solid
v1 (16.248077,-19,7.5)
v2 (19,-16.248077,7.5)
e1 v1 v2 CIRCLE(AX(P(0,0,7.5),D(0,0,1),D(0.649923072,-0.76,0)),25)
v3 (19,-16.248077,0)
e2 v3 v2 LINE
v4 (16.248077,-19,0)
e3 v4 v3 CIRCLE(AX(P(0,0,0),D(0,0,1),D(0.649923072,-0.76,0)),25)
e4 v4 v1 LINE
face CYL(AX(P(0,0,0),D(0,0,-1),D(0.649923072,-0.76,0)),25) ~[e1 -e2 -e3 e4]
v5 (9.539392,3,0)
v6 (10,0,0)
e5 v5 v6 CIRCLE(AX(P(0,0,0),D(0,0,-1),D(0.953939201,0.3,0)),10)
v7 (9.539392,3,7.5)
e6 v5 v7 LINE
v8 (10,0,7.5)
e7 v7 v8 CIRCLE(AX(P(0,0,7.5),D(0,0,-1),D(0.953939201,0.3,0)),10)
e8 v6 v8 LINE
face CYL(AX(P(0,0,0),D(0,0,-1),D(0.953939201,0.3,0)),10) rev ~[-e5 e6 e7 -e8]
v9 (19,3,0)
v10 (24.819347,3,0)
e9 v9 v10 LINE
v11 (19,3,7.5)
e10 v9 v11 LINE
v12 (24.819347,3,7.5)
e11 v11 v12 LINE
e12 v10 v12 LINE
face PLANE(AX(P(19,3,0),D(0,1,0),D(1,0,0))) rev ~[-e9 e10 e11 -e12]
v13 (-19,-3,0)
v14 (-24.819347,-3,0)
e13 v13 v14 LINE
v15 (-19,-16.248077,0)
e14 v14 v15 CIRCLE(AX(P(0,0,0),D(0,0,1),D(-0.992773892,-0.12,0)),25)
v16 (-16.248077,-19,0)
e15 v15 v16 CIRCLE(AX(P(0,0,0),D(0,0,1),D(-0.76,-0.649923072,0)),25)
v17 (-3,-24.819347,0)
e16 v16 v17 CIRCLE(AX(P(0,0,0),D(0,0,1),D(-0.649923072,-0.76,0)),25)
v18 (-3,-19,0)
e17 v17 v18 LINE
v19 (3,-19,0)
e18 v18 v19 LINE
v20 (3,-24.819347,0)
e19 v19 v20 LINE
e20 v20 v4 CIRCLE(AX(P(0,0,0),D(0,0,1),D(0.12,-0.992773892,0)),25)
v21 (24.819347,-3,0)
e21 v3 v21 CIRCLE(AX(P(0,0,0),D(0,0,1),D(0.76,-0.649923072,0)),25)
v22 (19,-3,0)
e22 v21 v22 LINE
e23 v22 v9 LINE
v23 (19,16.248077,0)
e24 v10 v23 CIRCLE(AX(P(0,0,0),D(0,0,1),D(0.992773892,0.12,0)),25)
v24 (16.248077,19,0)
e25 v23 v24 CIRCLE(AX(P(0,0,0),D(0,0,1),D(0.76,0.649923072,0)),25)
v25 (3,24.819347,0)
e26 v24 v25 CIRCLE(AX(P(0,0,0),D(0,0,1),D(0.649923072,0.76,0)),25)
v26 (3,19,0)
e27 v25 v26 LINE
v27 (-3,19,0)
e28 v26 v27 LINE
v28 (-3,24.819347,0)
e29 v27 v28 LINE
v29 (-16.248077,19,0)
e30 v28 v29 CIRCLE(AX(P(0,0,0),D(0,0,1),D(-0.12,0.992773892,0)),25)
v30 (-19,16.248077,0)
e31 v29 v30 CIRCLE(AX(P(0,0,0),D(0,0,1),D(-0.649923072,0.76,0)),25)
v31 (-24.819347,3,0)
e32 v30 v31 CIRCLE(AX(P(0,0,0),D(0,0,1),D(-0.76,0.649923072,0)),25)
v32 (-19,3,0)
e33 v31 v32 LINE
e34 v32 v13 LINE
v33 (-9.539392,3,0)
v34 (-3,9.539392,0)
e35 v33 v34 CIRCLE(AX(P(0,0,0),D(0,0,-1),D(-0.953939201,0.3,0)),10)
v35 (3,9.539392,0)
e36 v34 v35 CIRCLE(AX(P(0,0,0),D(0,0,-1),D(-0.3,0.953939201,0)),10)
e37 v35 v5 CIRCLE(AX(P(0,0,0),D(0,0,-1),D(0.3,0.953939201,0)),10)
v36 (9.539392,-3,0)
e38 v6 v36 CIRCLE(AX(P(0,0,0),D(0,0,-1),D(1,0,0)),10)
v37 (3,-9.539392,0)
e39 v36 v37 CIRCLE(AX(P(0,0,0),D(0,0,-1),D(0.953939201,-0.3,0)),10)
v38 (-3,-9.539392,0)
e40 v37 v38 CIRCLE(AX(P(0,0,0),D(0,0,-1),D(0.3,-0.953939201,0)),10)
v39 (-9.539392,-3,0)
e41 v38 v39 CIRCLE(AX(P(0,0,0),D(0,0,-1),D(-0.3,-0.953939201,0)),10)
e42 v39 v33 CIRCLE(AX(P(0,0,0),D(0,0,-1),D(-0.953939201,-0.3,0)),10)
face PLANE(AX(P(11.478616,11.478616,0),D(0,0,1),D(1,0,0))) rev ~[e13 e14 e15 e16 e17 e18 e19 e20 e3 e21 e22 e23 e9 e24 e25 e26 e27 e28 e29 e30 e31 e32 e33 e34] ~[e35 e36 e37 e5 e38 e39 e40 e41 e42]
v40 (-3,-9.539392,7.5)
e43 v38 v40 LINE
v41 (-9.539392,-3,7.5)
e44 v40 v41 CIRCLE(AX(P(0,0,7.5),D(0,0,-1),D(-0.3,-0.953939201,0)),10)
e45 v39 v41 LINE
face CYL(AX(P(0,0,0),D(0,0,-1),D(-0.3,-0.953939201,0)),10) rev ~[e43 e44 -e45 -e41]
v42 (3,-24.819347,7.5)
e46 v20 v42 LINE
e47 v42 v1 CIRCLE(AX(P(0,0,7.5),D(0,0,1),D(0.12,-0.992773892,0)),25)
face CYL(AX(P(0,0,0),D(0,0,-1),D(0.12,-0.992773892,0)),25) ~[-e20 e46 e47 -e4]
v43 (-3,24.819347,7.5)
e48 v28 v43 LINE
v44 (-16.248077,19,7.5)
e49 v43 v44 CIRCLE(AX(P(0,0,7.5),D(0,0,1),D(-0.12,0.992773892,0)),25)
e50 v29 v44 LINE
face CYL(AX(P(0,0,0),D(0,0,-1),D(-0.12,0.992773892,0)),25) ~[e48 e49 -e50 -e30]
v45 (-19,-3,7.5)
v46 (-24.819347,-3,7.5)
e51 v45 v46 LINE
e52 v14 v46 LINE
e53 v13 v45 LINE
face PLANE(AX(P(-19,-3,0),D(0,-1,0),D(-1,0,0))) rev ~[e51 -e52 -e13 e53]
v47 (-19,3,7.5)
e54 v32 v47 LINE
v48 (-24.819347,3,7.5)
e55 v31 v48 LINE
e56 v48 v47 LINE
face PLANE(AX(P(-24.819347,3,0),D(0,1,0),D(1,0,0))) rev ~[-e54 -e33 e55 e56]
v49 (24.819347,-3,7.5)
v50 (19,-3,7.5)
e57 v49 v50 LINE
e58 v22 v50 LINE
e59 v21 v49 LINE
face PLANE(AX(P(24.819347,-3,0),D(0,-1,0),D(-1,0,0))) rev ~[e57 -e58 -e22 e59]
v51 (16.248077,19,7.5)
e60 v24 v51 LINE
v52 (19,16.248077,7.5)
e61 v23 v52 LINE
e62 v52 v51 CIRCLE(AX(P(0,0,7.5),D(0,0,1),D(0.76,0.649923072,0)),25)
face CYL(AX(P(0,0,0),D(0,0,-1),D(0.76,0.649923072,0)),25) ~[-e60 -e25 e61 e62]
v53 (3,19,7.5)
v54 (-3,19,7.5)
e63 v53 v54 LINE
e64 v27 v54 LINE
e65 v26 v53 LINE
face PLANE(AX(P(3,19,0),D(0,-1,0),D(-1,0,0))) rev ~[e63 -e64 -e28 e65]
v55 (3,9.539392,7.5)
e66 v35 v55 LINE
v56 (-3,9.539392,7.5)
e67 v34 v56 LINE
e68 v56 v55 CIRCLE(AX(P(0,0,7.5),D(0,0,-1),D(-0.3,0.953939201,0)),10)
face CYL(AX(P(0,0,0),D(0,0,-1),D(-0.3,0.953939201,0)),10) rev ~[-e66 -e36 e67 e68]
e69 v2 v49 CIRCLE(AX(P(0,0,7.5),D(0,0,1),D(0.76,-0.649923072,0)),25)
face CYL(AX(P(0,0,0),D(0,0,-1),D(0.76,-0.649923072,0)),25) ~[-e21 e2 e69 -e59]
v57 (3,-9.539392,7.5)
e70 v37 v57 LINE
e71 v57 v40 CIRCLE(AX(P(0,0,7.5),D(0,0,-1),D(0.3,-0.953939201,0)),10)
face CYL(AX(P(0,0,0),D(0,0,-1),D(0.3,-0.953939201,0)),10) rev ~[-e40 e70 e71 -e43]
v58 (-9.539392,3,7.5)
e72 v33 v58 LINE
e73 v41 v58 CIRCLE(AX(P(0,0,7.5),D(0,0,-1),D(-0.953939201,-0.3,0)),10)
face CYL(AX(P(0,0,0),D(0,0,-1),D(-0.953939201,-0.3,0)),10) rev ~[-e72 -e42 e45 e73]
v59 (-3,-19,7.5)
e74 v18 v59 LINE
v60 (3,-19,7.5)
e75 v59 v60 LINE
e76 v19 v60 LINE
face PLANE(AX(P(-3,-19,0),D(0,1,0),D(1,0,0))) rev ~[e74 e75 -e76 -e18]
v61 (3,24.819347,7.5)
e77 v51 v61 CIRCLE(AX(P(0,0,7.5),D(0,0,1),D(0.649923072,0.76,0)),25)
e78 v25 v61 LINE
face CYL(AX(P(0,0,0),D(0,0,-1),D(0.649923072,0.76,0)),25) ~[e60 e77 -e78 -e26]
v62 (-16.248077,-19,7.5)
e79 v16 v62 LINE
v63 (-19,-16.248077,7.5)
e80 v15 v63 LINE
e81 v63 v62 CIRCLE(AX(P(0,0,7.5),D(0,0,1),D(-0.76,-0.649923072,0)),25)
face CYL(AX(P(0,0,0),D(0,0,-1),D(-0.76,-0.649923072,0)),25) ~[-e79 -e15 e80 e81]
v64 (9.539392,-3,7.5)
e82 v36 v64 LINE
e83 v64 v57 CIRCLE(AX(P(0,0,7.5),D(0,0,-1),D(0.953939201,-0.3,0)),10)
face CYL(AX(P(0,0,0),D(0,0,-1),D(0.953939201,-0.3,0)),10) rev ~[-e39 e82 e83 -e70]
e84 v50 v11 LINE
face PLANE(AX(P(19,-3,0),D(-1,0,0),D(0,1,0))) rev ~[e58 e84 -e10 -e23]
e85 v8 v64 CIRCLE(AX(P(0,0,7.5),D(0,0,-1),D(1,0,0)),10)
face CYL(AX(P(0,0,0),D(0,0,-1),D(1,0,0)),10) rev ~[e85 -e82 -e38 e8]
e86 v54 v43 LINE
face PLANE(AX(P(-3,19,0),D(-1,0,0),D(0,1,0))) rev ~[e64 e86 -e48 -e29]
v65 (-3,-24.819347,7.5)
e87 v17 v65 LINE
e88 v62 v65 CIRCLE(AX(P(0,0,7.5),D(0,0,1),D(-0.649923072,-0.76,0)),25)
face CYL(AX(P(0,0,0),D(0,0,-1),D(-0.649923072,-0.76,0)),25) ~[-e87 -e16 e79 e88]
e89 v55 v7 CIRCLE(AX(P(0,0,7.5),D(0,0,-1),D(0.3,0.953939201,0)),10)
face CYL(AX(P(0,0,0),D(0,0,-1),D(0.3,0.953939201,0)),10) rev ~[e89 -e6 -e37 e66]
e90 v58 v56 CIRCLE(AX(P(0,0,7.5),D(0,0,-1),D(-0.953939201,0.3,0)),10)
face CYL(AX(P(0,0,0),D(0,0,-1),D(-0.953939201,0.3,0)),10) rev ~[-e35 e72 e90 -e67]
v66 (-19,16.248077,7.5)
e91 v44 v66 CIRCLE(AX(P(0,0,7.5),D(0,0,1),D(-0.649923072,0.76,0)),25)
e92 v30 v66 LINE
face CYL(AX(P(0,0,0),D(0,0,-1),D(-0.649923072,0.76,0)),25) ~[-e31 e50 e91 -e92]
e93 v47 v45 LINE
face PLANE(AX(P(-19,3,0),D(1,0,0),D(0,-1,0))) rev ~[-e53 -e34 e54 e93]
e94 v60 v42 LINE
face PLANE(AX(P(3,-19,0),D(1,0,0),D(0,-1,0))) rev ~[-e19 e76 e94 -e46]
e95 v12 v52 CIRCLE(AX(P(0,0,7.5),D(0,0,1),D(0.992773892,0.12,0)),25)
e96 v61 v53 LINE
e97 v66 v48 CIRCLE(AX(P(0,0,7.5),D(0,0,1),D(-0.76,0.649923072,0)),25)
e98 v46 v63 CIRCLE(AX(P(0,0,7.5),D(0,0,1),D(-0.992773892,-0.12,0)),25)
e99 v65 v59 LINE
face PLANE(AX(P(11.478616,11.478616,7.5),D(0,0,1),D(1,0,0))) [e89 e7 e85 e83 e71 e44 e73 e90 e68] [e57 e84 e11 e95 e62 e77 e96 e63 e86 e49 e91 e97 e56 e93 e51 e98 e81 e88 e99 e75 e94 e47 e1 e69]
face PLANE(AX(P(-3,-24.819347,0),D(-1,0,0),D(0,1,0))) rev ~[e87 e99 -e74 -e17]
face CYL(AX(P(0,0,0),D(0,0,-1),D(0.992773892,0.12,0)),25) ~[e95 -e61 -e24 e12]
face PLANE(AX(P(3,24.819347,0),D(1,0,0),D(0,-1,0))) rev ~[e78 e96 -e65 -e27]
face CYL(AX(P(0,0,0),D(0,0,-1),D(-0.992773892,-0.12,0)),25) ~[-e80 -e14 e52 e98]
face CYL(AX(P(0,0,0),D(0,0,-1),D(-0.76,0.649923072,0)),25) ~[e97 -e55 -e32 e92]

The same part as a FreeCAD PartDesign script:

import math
import FreeCAD as App
import Part
import Sketcher
from FreeCAD import Vector
Q = App.Units.Quantity

doc = App.newDocument("Part")
body = doc.addObject("PartDesign::Body", "Body")

# Sketch on XY plane
sketch1 = body.newObject("Sketcher::SketchObject", "Sketch")
sketch1.AttachmentSupport = (doc.getObject("XY_Plane"), [""])
sketch1.MapMode = "FlatFace"
sketch1.addGeometry([
    Part.LineSegment(Vector(-3, 19, 0), Vector(-3, 24.8, 0)),  # 0
    Part.ArcOfCircle(Part.Circle(Vector(0, 0, 0), Vector(0, 0, 1), 25), math.radians(97), math.radians(131)),  # 1
    Part.ArcOfCircle(Part.Circle(Vector(0, 0, 0), Vector(0, 0, 1), 25), math.radians(130.54), math.radians(139.46)),  # 2
    Part.ArcOfCircle(Part.Circle(Vector(0, 0, 0), Vector(0, 0, 1), 25), math.radians(139), math.radians(173)),  # 3
    Part.LineSegment(Vector(-24.8, 3, 0), Vector(-19, 3, 0)),  # 4
    Part.LineSegment(Vector(-19, 3, 0), Vector(-19, -3, 0)),  # 5
    Part.LineSegment(Vector(-19, -3, 0), Vector(-24.8, -3, 0)),  # 6
    Part.ArcOfCircle(Part.Circle(Vector(0, 0, 0), Vector(0, 0, 1), 25), math.radians(-173), math.radians(-139)),  # 7
    Part.ArcOfCircle(Part.Circle(Vector(0, 0, 0), Vector(0, 0, 1), 25), math.radians(-139.46), math.radians(-130.54)),  # 8
    Part.ArcOfCircle(Part.Circle(Vector(0, 0, 0), Vector(0, 0, 1), 25), math.radians(-131), math.radians(-97)),  # 9
    Part.LineSegment(Vector(-3, -24.8, 0), Vector(-3, -19, 0)),  # 10
    Part.LineSegment(Vector(-3, -19, 0), Vector(3, -19, 0)),  # 11
    Part.LineSegment(Vector(3, -19, 0), Vector(3, -24.8, 0)),  # 12
    Part.ArcOfCircle(Part.Circle(Vector(0, 0, 0), Vector(0, 0, 1), 25), math.radians(-83), math.radians(-49)),  # 13
    Part.ArcOfCircle(Part.Circle(Vector(0, 0, 0), Vector(0, 0, 1), 25), math.radians(-49.46), math.radians(-40.54)),  # 14
    Part.ArcOfCircle(Part.Circle(Vector(0, 0, 0), Vector(0, 0, 1), 25), math.radians(-41), math.radians(-7)),  # 15
    Part.LineSegment(Vector(24.8, -3, 0), Vector(19, -3, 0)),  # 16
    Part.LineSegment(Vector(19, -3, 0), Vector(19, 3, 0)),  # 17
    Part.LineSegment(Vector(19, 3, 0), Vector(24.8, 3, 0)),  # 18
    Part.ArcOfCircle(Part.Circle(Vector(0, 0, 0), Vector(0, 0, 1), 25), math.radians(7), math.radians(41)),  # 19
    Part.ArcOfCircle(Part.Circle(Vector(0, 0, 0), Vector(0, 0, 1), 25), math.radians(40.54), math.radians(49.46)),  # 20
    Part.ArcOfCircle(Part.Circle(Vector(0, 0, 0), Vector(0, 0, 1), 25), math.radians(49), math.radians(83)),  # 21
    Part.LineSegment(Vector(3, 24.8, 0), Vector(3, 19, 0)),  # 22
    Part.LineSegment(Vector(3, 19, 0), Vector(-3, 19, 0)),  # 23
    Part.ArcOfCircle(Part.Circle(Vector(0, 0, 0), Vector(0, 0, 1), 10), math.radians(17), math.radians(73)),  # 24
    Part.ArcOfCircle(Part.Circle(Vector(0, 0, 0), Vector(0, 0, 1), 10), math.radians(0), math.radians(17.46)),  # 25
    Part.ArcOfCircle(Part.Circle(Vector(0, 0, 0), Vector(0, 0, 1), 10), math.radians(-17.46), math.radians(0)),  # 26
    Part.ArcOfCircle(Part.Circle(Vector(0, 0, 0), Vector(0, 0, 1), 10), math.radians(-73), math.radians(-17)),  # 27
    Part.ArcOfCircle(Part.Circle(Vector(0, 0, 0), Vector(0, 0, 1), 10), math.radians(-107), math.radians(-73)),  # 28
    Part.ArcOfCircle(Part.Circle(Vector(0, 0, 0), Vector(0, 0, 1), 10), math.radians(-163), math.radians(-107)),  # 29
    Part.ArcOfCircle(Part.Circle(Vector(0, 0, 0), Vector(0, 0, 1), 10), math.radians(163), math.radians(197)),  # 30
    Part.ArcOfCircle(Part.Circle(Vector(0, 0, 0), Vector(0, 0, 1), 10), math.radians(107), math.radians(163)),  # 31
    Part.ArcOfCircle(Part.Circle(Vector(0, 0, 0), Vector(0, 0, 1), 10), math.radians(73), math.radians(107)),  # 32
], False)
sketch1.addConstraint([
    Sketcher.Constraint("Coincident", 0, 2, 1, 1),
    Sketcher.Constraint("Tangent", 1, 2, 2, 1),
    Sketcher.Constraint("Tangent", 2, 2, 3, 1),
    Sketcher.Constraint("Coincident", 3, 2, 4, 1),
    Sketcher.Constraint("Coincident", 4, 2, 5, 1),
    Sketcher.Constraint("Coincident", 5, 2, 6, 1),
    Sketcher.Constraint("Coincident", 6, 2, 7, 1),
    Sketcher.Constraint("Tangent", 7, 2, 8, 1),
    Sketcher.Constraint("Tangent", 8, 2, 9, 1),
    Sketcher.Constraint("Coincident", 9, 2, 10, 1),
    Sketcher.Constraint("Coincident", 10, 2, 11, 1),
    Sketcher.Constraint("Coincident", 11, 2, 12, 1),
    Sketcher.Constraint("Coincident", 12, 2, 13, 1),
    Sketcher.Constraint("Tangent", 13, 2, 14, 1),
    Sketcher.Constraint("Tangent", 14, 2, 15, 1),
    Sketcher.Constraint("Coincident", 15, 2, 16, 1),
    Sketcher.Constraint("Coincident", 16, 2, 17, 1),
    Sketcher.Constraint("Coincident", 17, 2, 18, 1),
    Sketcher.Constraint("Coincident", 18, 2, 19, 1),
    Sketcher.Constraint("Tangent", 19, 2, 20, 1),
    Sketcher.Constraint("Tangent", 20, 2, 21, 1),
    Sketcher.Constraint("Coincident", 21, 2, 22, 1),
    Sketcher.Constraint("Coincident", 22, 2, 23, 1),
    Sketcher.Constraint("Coincident", 23, 2, 0, 1),
    Sketcher.Constraint("Tangent", 24, 1, 25, 2),
    Sketcher.Constraint("Tangent", 25, 1, 26, 2),
    Sketcher.Constraint("Tangent", 26, 1, 27, 2),
    Sketcher.Constraint("Tangent", 27, 1, 28, 2),
    Sketcher.Constraint("Tangent", 28, 1, 29, 2),
    Sketcher.Constraint("Tangent", 29, 1, 30, 2),
    Sketcher.Constraint("Tangent", 30, 1, 31, 2),
    Sketcher.Constraint("Tangent", 31, 1, 32, 2),
    Sketcher.Constraint("Tangent", 32, 1, 24, 2),
    Sketcher.Constraint("Vertical", 0),
    Sketcher.Constraint("Horizontal", 4),
    Sketcher.Constraint("Vertical", 5),
    Sketcher.Constraint("Horizontal", 6),
    Sketcher.Constraint("Vertical", 10),
    Sketcher.Constraint("Horizontal", 11),
    Sketcher.Constraint("Vertical", 12),
    Sketcher.Constraint("Horizontal", 16),
    Sketcher.Constraint("Vertical", 17),
    Sketcher.Constraint("Horizontal", 18),
    Sketcher.Constraint("Vertical", 22),
    Sketcher.Constraint("Horizontal", 23),
    Sketcher.Constraint("Coincident", 1, 3, -1, 1),
    Sketcher.Constraint("Coincident", 3, 3, -1, 1),
    Sketcher.Constraint("Coincident", 7, 3, -1, 1),
    Sketcher.Constraint("Coincident", 9, 3, -1, 1),
    Sketcher.Constraint("Coincident", 13, 3, -1, 1),
    Sketcher.Constraint("Coincident", 15, 3, -1, 1),
    Sketcher.Constraint("Coincident", 19, 3, -1, 1),
    Sketcher.Constraint("Coincident", 21, 3, -1, 1),
    Sketcher.Constraint("Coincident", 24, 3, -1, 1),
    Sketcher.Constraint("Coincident", 26, 3, -1, 1),
    Sketcher.Constraint("Coincident", 28, 3, -1, 1),
    Sketcher.Constraint("Coincident", 30, 3, -1, 1),
    Sketcher.Constraint("Equal", 3, 7),
    Sketcher.Constraint("Equal", 9, 13),
    Sketcher.Constraint("Equal", 15, 19),
    Sketcher.Constraint("Symmetric", 4, 2, 16, 2, -1, 1),
    Sketcher.Constraint("Symmetric", 10, 2, 22, 2, -1, 1),
    Sketcher.Constraint("PointOnObject", 25, 1, -1),
    Sketcher.Constraint("Horizontal", 8, 2, 10, 2),
    Sketcher.Constraint("Horizontal", 9, 2, 12, 2),
    Sketcher.Constraint("Horizontal", 11, 2, 13, 2),
    Sketcher.Constraint("Horizontal", 7, 2, 14, 2),
    Sketcher.Constraint("Horizontal", 6, 2, 15, 2),
    Sketcher.Constraint("Horizontal", 4, 2, 17, 2),
    Sketcher.Constraint("Horizontal", 2, 2, 19, 2),
    Sketcher.Constraint("Horizontal", 1, 2, 20, 2),
    Sketcher.Constraint("Horizontal", 0, 2, 21, 2),
    Sketcher.Constraint("Horizontal", 20, 2, 22, 2),
    Sketcher.Constraint("Horizontal", 18, 2, 24, 1),
    Sketcher.Constraint("Horizontal", 16, 2, 26, 1),
    Sketcher.Constraint("Horizontal", 27, 1, 28, 1),
    Sketcher.Constraint("Horizontal", 26, 1, 29, 1),
    Sketcher.Constraint("Horizontal", 24, 1, 30, 1),
    Sketcher.Constraint("Horizontal", 31, 1, 32, 1),
    Sketcher.Constraint("Vertical", 2, 2, 4, 2),
    Sketcher.Constraint("Vertical", 5, 2, 7, 2),
    Sketcher.Constraint("Vertical", 22, 2, 27, 1),
    Sketcher.Constraint("Vertical", 28, 1, 31, 1),
    Sketcher.Constraint("Equal", 18, 0),
    Sketcher.Constraint("Equal", 23, 5),
    Sketcher.Constraint("Radius", 1, Q("25 mm")),
    Sketcher.Constraint("Radius", 24, Q("10 mm")),
    Sketcher.Constraint("DistanceX", 11, 1, 11, 2, Q("6 mm")),
    Sketcher.Constraint("DistanceY", -1, 1, 1, 2, Q("19 mm")),
])
pad1 = body.newObject("PartDesign::Pad", "Pad")
pad1.Profile = sketch1
pad1.Length = 7.5

doc.recompute()
